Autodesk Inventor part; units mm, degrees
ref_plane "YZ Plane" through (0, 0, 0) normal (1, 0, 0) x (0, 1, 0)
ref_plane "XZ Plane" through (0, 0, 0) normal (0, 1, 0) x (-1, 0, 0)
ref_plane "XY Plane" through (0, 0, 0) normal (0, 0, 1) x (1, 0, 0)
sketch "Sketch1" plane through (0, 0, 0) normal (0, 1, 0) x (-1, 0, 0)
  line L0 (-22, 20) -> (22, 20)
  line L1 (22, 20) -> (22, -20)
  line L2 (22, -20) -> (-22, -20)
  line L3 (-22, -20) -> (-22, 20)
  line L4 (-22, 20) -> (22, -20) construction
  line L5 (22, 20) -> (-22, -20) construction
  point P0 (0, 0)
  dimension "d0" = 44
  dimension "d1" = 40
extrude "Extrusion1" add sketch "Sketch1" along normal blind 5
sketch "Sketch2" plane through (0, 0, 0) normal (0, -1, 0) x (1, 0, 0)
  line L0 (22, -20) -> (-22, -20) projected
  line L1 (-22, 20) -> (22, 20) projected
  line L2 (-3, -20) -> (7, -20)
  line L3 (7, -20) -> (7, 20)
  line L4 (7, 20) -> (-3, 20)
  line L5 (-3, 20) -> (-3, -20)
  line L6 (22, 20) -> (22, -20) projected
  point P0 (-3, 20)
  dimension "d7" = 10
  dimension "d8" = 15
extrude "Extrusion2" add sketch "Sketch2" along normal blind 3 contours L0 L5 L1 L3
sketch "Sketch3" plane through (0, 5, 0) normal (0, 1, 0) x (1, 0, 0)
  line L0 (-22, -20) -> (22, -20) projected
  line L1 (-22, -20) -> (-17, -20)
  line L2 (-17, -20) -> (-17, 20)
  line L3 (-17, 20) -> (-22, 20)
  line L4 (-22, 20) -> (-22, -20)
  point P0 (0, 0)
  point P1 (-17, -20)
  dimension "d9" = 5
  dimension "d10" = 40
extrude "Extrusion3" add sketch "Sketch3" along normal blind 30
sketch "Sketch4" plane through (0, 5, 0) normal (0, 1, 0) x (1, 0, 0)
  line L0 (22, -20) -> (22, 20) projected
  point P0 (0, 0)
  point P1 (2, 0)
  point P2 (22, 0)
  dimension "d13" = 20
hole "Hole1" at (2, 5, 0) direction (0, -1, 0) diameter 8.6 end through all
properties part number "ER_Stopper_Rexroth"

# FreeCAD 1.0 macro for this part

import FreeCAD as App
import Part
import Sketcher

V = App.Vector
Q = App.Units.Quantity


def add_polygon(sketch, points):
    """Adds a closed chain of lines whose ends are joined by coincident constraints."""
    first, n = sketch.GeometryCount, len(points)
    for a, b in zip(points, points[1:] + points[:1]):
        sketch.addGeometry(Part.LineSegment(App.Vector(*a, 0), App.Vector(*b, 0)), False)
    for i in range(n):
        sketch.addConstraint(Sketcher.Constraint("Coincident", first + i, 2, first + (i + 1) % n, 1))

doc = App.newDocument("Part")
body = doc.addObject("PartDesign::Body", "Body")

sketch1 = doc.addObject("Sketcher::SketchObject", "Sketch")
body.addObject(sketch1)
sketch1.AttachmentSupport = (doc.XZ_Plane, [""])
sketch1.MapMode = "FlatFace"
add_polygon(sketch1, [(-22, 20), (22, 20), (22, -20), (-22, -20)])
sketch1.addConstraint([
    Sketcher.Constraint("Horizontal", 0),
    Sketcher.Constraint("Vertical", 1),
    Sketcher.Constraint("Horizontal", 2),
    Sketcher.Constraint("Vertical", 3),
    Sketcher.Constraint("Symmetric", 0, 2, 2, 2, -1, 1),
    Sketcher.Constraint("DistanceX", 0, 1, 0, 2, Q("44 mm")),
    Sketcher.Constraint("DistanceY", 1, 2, 1, 1, Q("40 mm")),
])
pad1 = doc.addObject("PartDesign::Pad", "Pad")
body.addObject(pad1)
pad1.Profile = sketch1
pad1.Length = 5
pad1.Reversed = True

sketch2 = doc.addObject("Sketcher::SketchObject", "Sketch001")
body.addObject(sketch2)
sketch2.AttachmentSupport = (doc.XZ_Plane, [""])
sketch2.MapMode = "FlatFace"
add_polygon(sketch2, [(-3, -20), (7, -20), (7, 20), (-3, 20)])
sketch2.addConstraint([
    Sketcher.Constraint("Horizontal", 0),
    Sketcher.Constraint("Vertical", 1),
    Sketcher.Constraint("Horizontal", 2),
    Sketcher.Constraint("Vertical", 3),
    Sketcher.Constraint("DistanceX", 0, 1, 0, 2, Q("10 mm")),
    Sketcher.Constraint("DistanceY", 1, 1, 1, 2, Q("40 mm")),
    Sketcher.Constraint("DistanceX", -1, 1, 0, 2, Q("7 mm")),
    Sketcher.Constraint("DistanceY", 0, 2, -1, 1, Q("20 mm")),
])
pad2 = doc.addObject("PartDesign::Pad", "Pad001")
body.addObject(pad2)
pad2.Profile = sketch2
pad2.Length = 3

sketch3 = doc.addObject("Sketcher::SketchObject", "Sketch002")
body.addObject(sketch3)
sketch3.AttachmentSupport = (doc.XZ_Plane, [""])
sketch3.MapMode = "FlatFace"
sketch3.AttachmentOffset = App.Placement(V(0, 0, -5), App.Rotation())
add_polygon(sketch3, [(-22, -20), (-22, 20), (-17, 20), (-17, -20)])
sketch3.addConstraint([
    Sketcher.Constraint("Vertical", 0),
    Sketcher.Constraint("Horizontal", 1),
    Sketcher.Constraint("Vertical", 2),
    Sketcher.Constraint("Horizontal", 3),
    Sketcher.Constraint("DistanceX", 1, 1, 1, 2, Q("5 mm")),
    Sketcher.Constraint("DistanceY", 0, 1, 0, 2, Q("40 mm")),
    Sketcher.Constraint("DistanceX", 0, 2, -1, 1, Q("22 mm")),
    Sketcher.Constraint("DistanceY", -1, 1, 0, 2, Q("20 mm")),
])
pad3 = doc.addObject("PartDesign::Pad", "Pad002")
body.addObject(pad3)
pad3.Profile = sketch3
pad3.Length = 30
pad3.Reversed = True

sketch4 = doc.addObject("Sketcher::SketchObject", "Sketch003")
body.addObject(sketch4)
sketch4.AttachmentSupport = (doc.XZ_Plane, [""])
sketch4.MapMode = "FlatFace"
sketch4.AttachmentOffset = App.Placement(V(0, 0, -5), App.Rotation())
sketch4.addGeometry(Part.Circle(V(2, 0, 0), V(0, 0, 1), 4.3), False)
sketch4.addConstraint([
    Sketcher.Constraint("PointOnObject", 0, 3, -1),
    Sketcher.Constraint("Diameter", 0, Q("8.6 mm")),
    Sketcher.Constraint("DistanceX", -1, 1, 0, 3, Q("2 mm")),
])
doc.recompute()
hole = doc.addObject("PartDesign::Hole", "Hole")
body.addObject(hole)
hole.Profile = sketch4
hole.ThreadType = "None"
hole.Diameter = 8.6
hole.DepthType = "ThroughAll"
hole.Reversed = True

doc.recompute()
